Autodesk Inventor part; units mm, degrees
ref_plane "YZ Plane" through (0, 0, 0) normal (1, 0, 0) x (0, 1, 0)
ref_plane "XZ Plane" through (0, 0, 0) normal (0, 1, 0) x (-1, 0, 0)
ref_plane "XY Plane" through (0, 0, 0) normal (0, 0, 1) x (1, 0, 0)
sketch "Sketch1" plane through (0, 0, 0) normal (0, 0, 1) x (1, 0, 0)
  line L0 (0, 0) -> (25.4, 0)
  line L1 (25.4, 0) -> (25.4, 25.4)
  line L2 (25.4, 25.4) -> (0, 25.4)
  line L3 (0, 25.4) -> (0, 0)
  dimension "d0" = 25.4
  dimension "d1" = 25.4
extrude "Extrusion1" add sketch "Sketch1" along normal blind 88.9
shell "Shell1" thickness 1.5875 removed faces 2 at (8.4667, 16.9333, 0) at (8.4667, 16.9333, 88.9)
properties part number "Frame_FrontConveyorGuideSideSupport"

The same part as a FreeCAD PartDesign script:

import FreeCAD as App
import Part
import Sketcher
from FreeCAD import Vector
Q = App.Units.Quantity


def faces_at(feature, points):
    """Names of the faces that lie closest to the given points."""
    faces = feature.Shape.Faces
    near = lambda p: min(range(len(faces)), key=lambda i: faces[i].distToShape(Part.Vertex(*p))[0])
    return sorted({f"Face{near(p) + 1}" for p in points})

doc = App.newDocument("Part")
body = doc.addObject("PartDesign::Body", "Body")

# Sketch on XY plane
sketch1 = body.newObject("Sketcher::SketchObject", "Sketch")
sketch1.AttachmentSupport = (doc.getObject("XY_Plane"), [""])
sketch1.MapMode = "FlatFace"
sketch1.addGeometry(Part.LineSegment(Vector(0, 25, 0), Vector(0, 0, 0)), False)
sketch1.addGeometry(Part.LineSegment(Vector(0, 0, 0), Vector(25, 0, 0)), False)
sketch1.addGeometry(Part.LineSegment(Vector(25, 0, 0), Vector(25, 25, 0)), False)
sketch1.addGeometry(Part.LineSegment(Vector(25, 25, 0), Vector(0, 25, 0)), False)
sketch1.addConstraint(Sketcher.Constraint("Coincident", 0, 2, 1, 1))
sketch1.addConstraint(Sketcher.Constraint("Coincident", 1, 2, 2, 1))
sketch1.addConstraint(Sketcher.Constraint("Coincident", 2, 2, 3, 1))
sketch1.addConstraint(Sketcher.Constraint("Coincident", 3, 2, 0, 1))
sketch1.addConstraint(Sketcher.Constraint("Vertical", 0))
sketch1.addConstraint(Sketcher.Constraint("Horizontal", 1))
sketch1.addConstraint(Sketcher.Constraint("Vertical", 2))
sketch1.addConstraint(Sketcher.Constraint("Horizontal", 3))
sketch1.addConstraint(Sketcher.Constraint("Coincident", 0, 2, -1, 1))
sketch1.addConstraint(Sketcher.Constraint("Equal", 3, 0))
sketch1.addConstraint(Sketcher.Constraint("DistanceX", 1, 1, 1, 2, Q("1 in")))
pad1 = body.newObject("PartDesign::Pad", "Pad")
pad1.Profile = sketch1
pad1.Length = Q("3.5 in")
doc.recompute()

thickness = body.newObject("PartDesign::Thickness", "Thickness")
thickness.Base = (pad1, faces_at(pad1, [(8.467, 16.933, 0), (8.467, 16.933, 88.9)]))
thickness.Value = Q("0.0625 in")
thickness.Reversed = True
thickness.Join = "Intersection"

doc.recompute()
